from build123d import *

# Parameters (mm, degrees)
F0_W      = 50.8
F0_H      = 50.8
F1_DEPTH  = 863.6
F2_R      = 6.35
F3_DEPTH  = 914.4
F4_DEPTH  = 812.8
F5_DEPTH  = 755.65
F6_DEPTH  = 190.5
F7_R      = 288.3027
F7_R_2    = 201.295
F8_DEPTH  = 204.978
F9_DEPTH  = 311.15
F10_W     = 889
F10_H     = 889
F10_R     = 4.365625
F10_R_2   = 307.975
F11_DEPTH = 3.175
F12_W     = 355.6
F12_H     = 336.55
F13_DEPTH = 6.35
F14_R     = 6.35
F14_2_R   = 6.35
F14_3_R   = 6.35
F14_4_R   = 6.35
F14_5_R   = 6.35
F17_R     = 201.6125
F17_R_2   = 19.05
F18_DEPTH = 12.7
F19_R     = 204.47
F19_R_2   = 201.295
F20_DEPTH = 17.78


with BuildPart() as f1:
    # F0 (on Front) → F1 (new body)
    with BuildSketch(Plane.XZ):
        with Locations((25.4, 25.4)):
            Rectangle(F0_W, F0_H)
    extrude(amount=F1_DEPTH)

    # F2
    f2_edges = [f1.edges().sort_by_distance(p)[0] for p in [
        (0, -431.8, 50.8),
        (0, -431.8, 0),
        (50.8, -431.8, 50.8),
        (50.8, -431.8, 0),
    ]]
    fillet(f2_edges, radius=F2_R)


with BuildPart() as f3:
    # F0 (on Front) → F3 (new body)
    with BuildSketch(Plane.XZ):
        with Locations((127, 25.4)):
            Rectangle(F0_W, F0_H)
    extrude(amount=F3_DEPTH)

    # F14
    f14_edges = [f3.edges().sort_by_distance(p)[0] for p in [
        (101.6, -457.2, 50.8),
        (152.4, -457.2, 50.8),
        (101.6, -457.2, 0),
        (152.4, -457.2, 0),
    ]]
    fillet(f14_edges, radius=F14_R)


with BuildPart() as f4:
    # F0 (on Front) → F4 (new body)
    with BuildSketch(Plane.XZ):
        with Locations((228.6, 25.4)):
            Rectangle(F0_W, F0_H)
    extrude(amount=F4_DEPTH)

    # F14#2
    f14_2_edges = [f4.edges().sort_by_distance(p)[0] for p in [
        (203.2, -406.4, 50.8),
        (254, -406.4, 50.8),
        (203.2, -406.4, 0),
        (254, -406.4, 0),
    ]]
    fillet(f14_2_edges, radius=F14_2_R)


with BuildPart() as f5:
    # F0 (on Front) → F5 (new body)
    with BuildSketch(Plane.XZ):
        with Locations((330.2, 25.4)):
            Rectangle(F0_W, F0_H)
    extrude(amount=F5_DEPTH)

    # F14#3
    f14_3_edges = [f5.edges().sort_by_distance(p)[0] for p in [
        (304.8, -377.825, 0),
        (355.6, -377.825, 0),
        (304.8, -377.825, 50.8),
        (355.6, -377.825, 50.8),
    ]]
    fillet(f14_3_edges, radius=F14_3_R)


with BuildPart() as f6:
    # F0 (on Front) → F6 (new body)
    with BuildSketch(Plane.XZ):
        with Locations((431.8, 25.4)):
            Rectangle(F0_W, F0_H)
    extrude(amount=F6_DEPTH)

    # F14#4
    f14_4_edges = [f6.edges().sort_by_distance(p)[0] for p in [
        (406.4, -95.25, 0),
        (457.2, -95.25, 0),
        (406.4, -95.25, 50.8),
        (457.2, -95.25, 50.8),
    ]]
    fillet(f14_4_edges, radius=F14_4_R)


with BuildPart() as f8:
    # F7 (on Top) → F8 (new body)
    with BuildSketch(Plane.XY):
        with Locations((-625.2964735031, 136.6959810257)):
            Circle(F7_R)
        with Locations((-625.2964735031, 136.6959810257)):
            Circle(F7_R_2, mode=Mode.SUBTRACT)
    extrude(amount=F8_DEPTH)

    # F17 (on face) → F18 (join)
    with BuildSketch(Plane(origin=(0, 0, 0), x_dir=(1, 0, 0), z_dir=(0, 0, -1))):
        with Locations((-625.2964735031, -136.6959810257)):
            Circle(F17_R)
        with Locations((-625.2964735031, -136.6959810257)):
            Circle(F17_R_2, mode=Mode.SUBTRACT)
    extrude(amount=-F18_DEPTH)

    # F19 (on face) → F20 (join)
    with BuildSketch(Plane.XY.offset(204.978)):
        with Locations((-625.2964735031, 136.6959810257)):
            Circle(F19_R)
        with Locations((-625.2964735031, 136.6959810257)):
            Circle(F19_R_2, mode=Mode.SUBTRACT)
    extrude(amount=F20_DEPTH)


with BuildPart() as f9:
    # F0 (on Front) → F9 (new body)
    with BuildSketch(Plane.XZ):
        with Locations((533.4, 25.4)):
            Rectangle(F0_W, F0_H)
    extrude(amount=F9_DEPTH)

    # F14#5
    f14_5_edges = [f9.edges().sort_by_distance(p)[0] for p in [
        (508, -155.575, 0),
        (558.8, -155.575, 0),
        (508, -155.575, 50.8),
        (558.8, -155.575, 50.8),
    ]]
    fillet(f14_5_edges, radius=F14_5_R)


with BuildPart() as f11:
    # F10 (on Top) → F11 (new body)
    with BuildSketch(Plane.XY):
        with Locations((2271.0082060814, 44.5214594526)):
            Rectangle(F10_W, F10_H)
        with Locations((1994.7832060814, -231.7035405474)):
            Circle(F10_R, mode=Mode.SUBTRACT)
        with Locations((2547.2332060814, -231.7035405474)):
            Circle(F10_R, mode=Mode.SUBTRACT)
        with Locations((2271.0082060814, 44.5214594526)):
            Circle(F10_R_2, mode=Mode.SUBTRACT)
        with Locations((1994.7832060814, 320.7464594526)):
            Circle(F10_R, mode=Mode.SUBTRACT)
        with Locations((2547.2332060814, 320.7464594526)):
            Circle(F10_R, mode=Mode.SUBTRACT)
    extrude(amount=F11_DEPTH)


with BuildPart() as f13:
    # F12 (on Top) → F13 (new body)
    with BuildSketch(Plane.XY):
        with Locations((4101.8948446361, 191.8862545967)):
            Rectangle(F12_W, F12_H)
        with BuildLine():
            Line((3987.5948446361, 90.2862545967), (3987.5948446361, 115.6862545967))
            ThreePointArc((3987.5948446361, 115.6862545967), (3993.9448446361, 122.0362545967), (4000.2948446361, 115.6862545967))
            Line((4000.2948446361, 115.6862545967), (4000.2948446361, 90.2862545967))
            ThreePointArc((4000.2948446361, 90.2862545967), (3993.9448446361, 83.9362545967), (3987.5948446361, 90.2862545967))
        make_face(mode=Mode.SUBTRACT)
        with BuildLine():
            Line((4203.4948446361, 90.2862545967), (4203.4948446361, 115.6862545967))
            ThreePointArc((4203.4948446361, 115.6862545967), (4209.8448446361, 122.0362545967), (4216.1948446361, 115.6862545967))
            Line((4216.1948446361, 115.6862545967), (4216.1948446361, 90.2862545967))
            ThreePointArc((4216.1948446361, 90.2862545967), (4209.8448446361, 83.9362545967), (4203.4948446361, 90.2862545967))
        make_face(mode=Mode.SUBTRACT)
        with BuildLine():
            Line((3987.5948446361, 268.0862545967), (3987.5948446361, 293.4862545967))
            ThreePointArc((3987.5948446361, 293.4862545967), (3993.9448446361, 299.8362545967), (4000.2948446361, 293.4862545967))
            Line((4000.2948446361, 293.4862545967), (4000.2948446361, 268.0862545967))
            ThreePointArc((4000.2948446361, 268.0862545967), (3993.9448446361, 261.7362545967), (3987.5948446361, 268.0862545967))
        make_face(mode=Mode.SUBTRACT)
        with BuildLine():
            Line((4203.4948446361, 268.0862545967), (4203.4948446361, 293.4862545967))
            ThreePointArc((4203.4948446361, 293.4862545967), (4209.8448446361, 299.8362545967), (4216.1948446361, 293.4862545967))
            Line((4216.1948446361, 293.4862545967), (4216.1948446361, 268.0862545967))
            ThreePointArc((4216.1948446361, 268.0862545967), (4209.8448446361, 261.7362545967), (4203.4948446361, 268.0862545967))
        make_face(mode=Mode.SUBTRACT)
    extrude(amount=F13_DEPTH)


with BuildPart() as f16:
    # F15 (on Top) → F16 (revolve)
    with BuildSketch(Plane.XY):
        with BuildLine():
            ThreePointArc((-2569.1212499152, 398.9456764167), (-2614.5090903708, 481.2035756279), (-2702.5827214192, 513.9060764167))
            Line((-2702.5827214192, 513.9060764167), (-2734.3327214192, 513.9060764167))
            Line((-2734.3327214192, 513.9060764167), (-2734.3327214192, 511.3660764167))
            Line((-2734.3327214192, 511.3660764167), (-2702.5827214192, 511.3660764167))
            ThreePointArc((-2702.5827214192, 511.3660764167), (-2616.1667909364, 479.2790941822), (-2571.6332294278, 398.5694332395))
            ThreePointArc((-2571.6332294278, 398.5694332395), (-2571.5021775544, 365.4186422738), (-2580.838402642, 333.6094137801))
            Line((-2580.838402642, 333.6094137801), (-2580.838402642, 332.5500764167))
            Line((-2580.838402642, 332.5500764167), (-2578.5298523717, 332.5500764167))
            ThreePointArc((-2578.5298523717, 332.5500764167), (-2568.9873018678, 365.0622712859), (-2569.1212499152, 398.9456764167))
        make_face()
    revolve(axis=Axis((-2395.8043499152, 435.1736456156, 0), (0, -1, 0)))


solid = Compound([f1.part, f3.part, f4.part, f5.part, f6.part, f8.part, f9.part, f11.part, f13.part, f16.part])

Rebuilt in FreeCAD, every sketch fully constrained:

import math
import FreeCAD as App
import Part
import Sketcher

V = App.Vector
Q = App.Units.Quantity


def edges_at(feature, points):
    """Names of the edges that pass closest to the given points."""
    edges = feature.Shape.Edges
    near = lambda p: min(range(len(edges)), key=lambda i: edges[i].distToShape(Part.Vertex(*p))[0])
    return sorted({f"Edge{near(p) + 1}" for p in points})


def add_polygon(sketch, points):
    """Adds a closed chain of lines whose ends are joined by coincident constraints."""
    first, n = sketch.GeometryCount, len(points)
    for a, b in zip(points, points[1:] + points[:1]):
        sketch.addGeometry(Part.LineSegment(App.Vector(*a, 0), App.Vector(*b, 0)), False)
    for i in range(n):
        sketch.addConstraint(Sketcher.Constraint("Coincident", first + i, 2, first + (i + 1) % n, 1))

doc = App.newDocument("Part")
body = doc.addObject("PartDesign::Body", "Body")

sketch1 = body.newObject("Sketcher::SketchObject", "Sketch")
sketch1.AttachmentSupport = (doc.getObject("XZ_Plane"), [""])
sketch1.MapMode = "FlatFace"
add_polygon(sketch1, [(0, 51), (0, 0), (51, 0), (51, 51)])
sketch1.addConstraint([
    Sketcher.Constraint("Vertical", 0),
    Sketcher.Constraint("Horizontal", 1),
    Sketcher.Constraint("Vertical", 2),
    Sketcher.Constraint("Horizontal", 3),
    Sketcher.Constraint("Coincident", 0, 2, -1, 1),
    Sketcher.Constraint("Equal", 3, 0),
    Sketcher.Constraint("DistanceX", 1, 1, 1, 2, Q("2 in")),
])
pad1 = body.newObject("PartDesign::Pad", "Pad")
pad1.Profile = sketch1
pad1.Length = Q("34 in")
doc.recompute()

fillet = body.newObject("PartDesign::Fillet", "Fillet")
fillet.Base = (pad1, edges_at(pad1, [
    (0, -431.8, 50.8),
    (0, -431.8, 0),
    (50.8, -431.8, 50.8),
    (50.8, -431.8, 0),
]))
fillet.Radius = Q("0.25 in")
body2 = doc.addObject("PartDesign::Body", "Body001")

sketch2 = body2.newObject("Sketcher::SketchObject", "Sketch001")
sketch2.AttachmentSupport = (doc.getObject("XZ_Plane001"), [""])
sketch2.MapMode = "FlatFace"
add_polygon(sketch2, [(102, 51), (102, 0), (152, 0), (152, 51)])
sketch2.addConstraint([
    Sketcher.Constraint("Vertical", 0),
    Sketcher.Constraint("Horizontal", 1),
    Sketcher.Constraint("Vertical", 2),
    Sketcher.Constraint("Horizontal", 3),
    Sketcher.Constraint("PointOnObject", 0, 2, -1),
    Sketcher.Constraint("Equal", 3, 0),
    Sketcher.Constraint("DistanceX", 1, 1, 1, 2, Q("2 in")),
    Sketcher.Constraint("DistanceX", -1, 1, 0, 2, Q("4 in")),
])
pad2 = body2.newObject("PartDesign::Pad", "Pad001")
pad2.Profile = sketch2
pad2.Length = Q("36 in")
doc.recompute()

fillet2 = body2.newObject("PartDesign::Fillet", "Fillet001")
fillet2.Base = (pad2, edges_at(pad2, [
    (101.6, -457.2, 50.8),
    (152.4, -457.2, 50.8),
    (101.6, -457.2, 0),
    (152.4, -457.2, 0),
]))
fillet2.Radius = Q("0.25 in")
body3 = doc.addObject("PartDesign::Body", "Body002")

sketch3 = body3.newObject("Sketcher::SketchObject", "Sketch002")
sketch3.AttachmentSupport = (doc.getObject("XZ_Plane002"), [""])
sketch3.MapMode = "FlatFace"
add_polygon(sketch3, [(203, 51), (203, 0), (254, 0), (254, 51)])
sketch3.addConstraint([
    Sketcher.Constraint("Vertical", 0),
    Sketcher.Constraint("Horizontal", 1),
    Sketcher.Constraint("Vertical", 2),
    Sketcher.Constraint("Horizontal", 3),
    Sketcher.Constraint("PointOnObject", 0, 2, -1),
    Sketcher.Constraint("Equal", 3, 0),
    Sketcher.Constraint("DistanceX", 1, 1, 1, 2, Q("2 in")),
    Sketcher.Constraint("DistanceX", -1, 1, 0, 2, Q("8 in")),
])
pad3 = body3.newObject("PartDesign::Pad", "Pad002")
pad3.Profile = sketch3
pad3.Length = Q("32 in")
doc.recompute()

fillet3 = body3.newObject("PartDesign::Fillet", "Fillet002")
fillet3.Base = (pad3, edges_at(pad3, [
    (203.2, -406.4, 50.8),
    (254, -406.4, 50.8),
    (203.2, -406.4, 0),
    (254, -406.4, 0),
]))
fillet3.Radius = Q("0.25 in")
body4 = doc.addObject("PartDesign::Body", "Body003")

sketch4 = body4.newObject("Sketcher::SketchObject", "Sketch003")
sketch4.AttachmentSupport = (doc.getObject("XZ_Plane003"), [""])
sketch4.MapMode = "FlatFace"
add_polygon(sketch4, [(305, 51), (305, 0), (356, 0), (356, 51)])
sketch4.addConstraint([
    Sketcher.Constraint("Vertical", 0),
    Sketcher.Constraint("Horizontal", 1),
    Sketcher.Constraint("Vertical", 2),
    Sketcher.Constraint("Horizontal", 3),
    Sketcher.Constraint("PointOnObject", 0, 2, -1),
    Sketcher.Constraint("Equal", 3, 0),
    Sketcher.Constraint("DistanceX", 1, 1, 1, 2, Q("2 in")),
    Sketcher.Constraint("DistanceX", -1, 1, 0, 2, Q("12 in")),
])
pad4 = body4.newObject("PartDesign::Pad", "Pad003")
pad4.Profile = sketch4
pad4.Length = Q("29.75 in")
doc.recompute()

fillet4 = body4.newObject("PartDesign::Fillet", "Fillet003")
fillet4.Base = (pad4, edges_at(pad4, [
    (304.8, -377.825, 0),
    (355.6, -377.825, 0),
    (304.8, -377.825, 50.8),
    (355.6, -377.825, 50.8),
]))
fillet4.Radius = Q("0.25 in")
body5 = doc.addObject("PartDesign::Body", "Body004")

sketch5 = body5.newObject("Sketcher::SketchObject", "Sketch004")
sketch5.AttachmentSupport = (doc.getObject("XZ_Plane004"), [""])
sketch5.MapMode = "FlatFace"
add_polygon(sketch5, [(406, 51), (406, 0), (457, 0), (457, 51)])
sketch5.addConstraint([
    Sketcher.Constraint("Vertical", 0),
    Sketcher.Constraint("Horizontal", 1),
    Sketcher.Constraint("Vertical", 2),
    Sketcher.Constraint("Horizontal", 3),
    Sketcher.Constraint("PointOnObject", 0, 2, -1),
    Sketcher.Constraint("Equal", 3, 0),
    Sketcher.Constraint("DistanceX", 1, 1, 1, 2, Q("2 in")),
    Sketcher.Constraint("DistanceX", -1, 1, 0, 2, Q("16 in")),
])
pad5 = body5.newObject("PartDesign::Pad", "Pad004")
pad5.Profile = sketch5
pad5.Length = Q("7.5 in")
doc.recompute()

fillet5 = body5.newObject("PartDesign::Fillet", "Fillet004")
fillet5.Base = (pad5, edges_at(pad5, [
    (406.4, -95.25, 0),
    (457.2, -95.25, 0),
    (406.4, -95.25, 50.8),
    (457.2, -95.25, 50.8),
]))
fillet5.Radius = Q("0.25 in")
body6 = doc.addObject("PartDesign::Body", "Body005")

sketch6 = body6.newObject("Sketcher::SketchObject", "Sketch005")
sketch6.AttachmentSupport = (doc.getObject("XY_Plane005"), [""])
sketch6.MapMode = "FlatFace"
sketch6.addGeometry([
    Part.Circle(V(-625, 137, 0), V(0, 0, 1), 288),
    Part.Circle(V(-625, 137, 0), V(0, 0, 1), 201),
], False)
sketch6.addConstraint([
    Sketcher.Constraint("Coincident", 1, 3, 0, 3),
    Sketcher.Constraint("Diameter", 1, Q("15.85 in")),
    Sketcher.Constraint("Diameter", 0, Q("22.701 in")),
    Sketcher.Constraint("DistanceY", -1, 1, 0, 3, Q("136.695981 mm")),
    Sketcher.Constraint("DistanceX", 0, 3, -1, 1, Q("625.296474 mm")),
])
pad6 = body6.newObject("PartDesign::Pad", "Pad005")
pad6.Profile = sketch6
pad6.Length = Q("8.07 in")

sketch7 = body6.newObject("Sketcher::SketchObject", "Sketch006")
sketch7.AttachmentSupport = (doc.getObject("XY_Plane005"), [""])
sketch7.MapMode = "FlatFace"
sketch7.addGeometry([
    Part.Circle(V(-625, 137, 0), V(0, 0, 1), 202),
    Part.Circle(V(-625, 137, 0), V(0, 0, 1), 19),
], False)
sketch7.addConstraint([
    Sketcher.Constraint("Coincident", 1, 3, 0, 3),
    Sketcher.Constraint("Diameter", 1, Q("1.5 in")),
    Sketcher.Constraint("Diameter", 0, Q("15.875 in")),
    Sketcher.Constraint("DistanceY", -1, 1, 0, 3, Q("136.695981 mm")),
    Sketcher.Constraint("DistanceX", 0, 3, -1, 1, Q("625.296474 mm")),
])
pad7 = body6.newObject("PartDesign::Pad", "Pad006")
pad7.Profile = sketch7
pad7.Length = Q("0.5 in")

sketch8 = body6.newObject("Sketcher::SketchObject", "Sketch007")
sketch8.AttachmentSupport = (doc.getObject("XY_Plane005"), [""])
sketch8.MapMode = "FlatFace"
sketch8.AttachmentOffset = App.Placement(V(0, 0, 8.07 * 25.4), App.Rotation())
sketch8.addGeometry([
    Part.Circle(V(-625, 137, 0), V(0, 0, 1), 204),
    Part.Circle(V(-625, 137, 0), V(0, 0, 1), 201),
], False)
sketch8.addConstraint([
    Sketcher.Constraint("Coincident", 1, 3, 0, 3),
    Sketcher.Constraint("Diameter", 0, Q("16.1 in")),
    Sketcher.Constraint("Diameter", 1, Q("15.85 in")),
    Sketcher.Constraint("DistanceY", -1, 1, 0, 3, Q("136.695981 mm")),
    Sketcher.Constraint("DistanceX", 0, 3, -1, 1, Q("625.296474 mm")),
])
pad8 = body6.newObject("PartDesign::Pad", "Pad007")
pad8.Profile = sketch8
pad8.Length = Q("0.7 in")
body7 = doc.addObject("PartDesign::Body", "Body006")

sketch9 = body7.newObject("Sketcher::SketchObject", "Sketch008")
sketch9.AttachmentSupport = (doc.getObject("XZ_Plane006"), [""])
sketch9.MapMode = "FlatFace"
add_polygon(sketch9, [(508, 51), (508, 0), (559, 0), (559, 51)])
sketch9.addConstraint([
    Sketcher.Constraint("Vertical", 0),
    Sketcher.Constraint("Horizontal", 1),
    Sketcher.Constraint("Vertical", 2),
    Sketcher.Constraint("Horizontal", 3),
    Sketcher.Constraint("PointOnObject", 0, 2, -1),
    Sketcher.Constraint("Equal", 3, 0),
    Sketcher.Constraint("DistanceX", 1, 1, 1, 2, Q("2 in")),
    Sketcher.Constraint("DistanceX", -1, 1, 0, 2, Q("20 in")),
])
pad9 = body7.newObject("PartDesign::Pad", "Pad008")
pad9.Profile = sketch9
pad9.Length = Q("12.25 in")
doc.recompute()

fillet6 = body7.newObject("PartDesign::Fillet", "Fillet005")
fillet6.Base = (pad9, edges_at(pad9, [
    (508, -155.575, 0),
    (558.8, -155.575, 0),
    (508, -155.575, 50.8),
    (558.8, -155.575, 50.8),
]))
fillet6.Radius = Q("0.25 in")
body8 = doc.addObject("PartDesign::Body", "Body007")

sketch10 = body8.newObject("Sketcher::SketchObject", "Sketch009")
sketch10.AttachmentSupport = (doc.getObject("XY_Plane007"), [""])
sketch10.MapMode = "FlatFace"
add_polygon(sketch10, [(1826.5, 489), (1826.5, -400), (2715.5, -400), (2715.5, 489)])
sketch10.addGeometry(Part.Circle(V(1994.8, -231.7, 0), V(0, 0, 1), 4.4), False)
sketch10.addGeometry(Part.Circle(V(2547.2, -231.7, 0), V(0, 0, 1), 4.4), False)
sketch10.addGeometry(Part.Circle(V(1994.8, 320.7, 0), V(0, 0, 1), 4.4), False)
sketch10.addGeometry(Part.Circle(V(2271, 44.5, 0), V(0, 0, 1), 308), False)
sketch10.addGeometry(Part.Circle(V(2547.2, 320.7, 0), V(0, 0, 1), 4.4), False)
sketch10.addConstraint([
    Sketcher.Constraint("Vertical", 0),
    Sketcher.Constraint("Horizontal", 1),
    Sketcher.Constraint("Vertical", 2),
    Sketcher.Constraint("Horizontal", 3),
    Sketcher.Constraint("Equal", 4, 5),
    Sketcher.Constraint("Equal", 5, 6),
    Sketcher.Constraint("Equal", 6, 8),
    Sketcher.Constraint("Horizontal", 4, 3, 5, 3),
    Sketcher.Constraint("Horizontal", 6, 3, 8, 3),
    Sketcher.Constraint("Vertical", 4, 3, 6, 3),
    Sketcher.Constraint("Vertical", 5, 3, 8, 3),
    Sketcher.Constraint("Equal", 3, 0),
    Sketcher.Constraint("Diameter", 7, Q("24.25 in")),
    Sketcher.Constraint("DistanceX", 1, 1, 1, 2, Q("35 in")),
    Sketcher.Constraint("Diameter", 4, Q("0.34375 in")),
    Sketcher.Constraint("DistanceX", 0, 2, 7, 3, Q("17.5 in")),
    Sketcher.Constraint("DistanceY", 0, 2, 7, 3, Q("17.5 in")),
    Sketcher.Constraint("DistanceX", 4, 3, 5, 3, Q("21.75 in")),
    Sketcher.Constraint("DistanceY", 4, 3, 6, 3, Q("21.75 in")),
    Sketcher.Constraint("DistanceX", 7, 3, 5, 3, Q("10.875 in")),
    Sketcher.Constraint("DistanceY", 5, 3, 7, 3, Q("10.875 in")),
    Sketcher.Constraint("DistanceY", 4, 3, -1, 1, Q("231.703541 mm")),
    Sketcher.Constraint("DistanceX", -1, 1, 4, 3, Q("1994.783206 mm")),
])
pad10 = body8.newObject("PartDesign::Pad", "Pad009")
pad10.Profile = sketch10
pad10.Length = Q("0.125 in")
body9 = doc.addObject("PartDesign::Body", "Body008")

sketch11 = body9.newObject("Sketcher::SketchObject", "Sketch010")
sketch11.AttachmentSupport = (doc.getObject("XY_Plane008"), [""])
sketch11.MapMode = "FlatFace"
add_polygon(sketch11, [(3924, 360), (3924, 24), (4280, 24), (4280, 360)])
sketch11.addGeometry(Part.ArcOfCircle(Part.Circle(V(3994, 90, 0), V(0, 0, 1), 6), math.radians(180), math.radians(360)), False)
sketch11.addGeometry(Part.LineSegment(V(3988, 90, 0), V(3988, 116, 0)), False)
sketch11.addGeometry(Part.ArcOfCircle(Part.Circle(V(3994, 116, 0), V(0, 0, 1), 6), math.radians(0), math.radians(180)), False)
sketch11.addGeometry(Part.LineSegment(V(4000, 116, 0), V(4000, 90, 0)), False)
sketch11.addGeometry(Part.ArcOfCircle(Part.Circle(V(4210, 90, 0), V(0, 0, 1), 6), math.radians(180), math.radians(360)), False)
sketch11.addGeometry(Part.LineSegment(V(4203, 90, 0), V(4203, 116, 0)), False)
sketch11.addGeometry(Part.ArcOfCircle(Part.Circle(V(4210, 116, 0), V(0, 0, 1), 6), math.radians(0), math.radians(180)), False)
sketch11.addGeometry(Part.LineSegment(V(4216, 116, 0), V(4216, 90, 0)), False)
sketch11.addGeometry(Part.ArcOfCircle(Part.Circle(V(3994, 268, 0), V(0, 0, 1), 6), math.radians(180), math.radians(360)), False)
sketch11.addGeometry(Part.LineSegment(V(3988, 268, 0), V(3988, 293, 0)), False)
sketch11.addGeometry(Part.ArcOfCircle(Part.Circle(V(3994, 293, 0), V(0, 0, 1), 6), math.radians(0), math.radians(180)), False)
sketch11.addGeometry(Part.LineSegment(V(4000, 293, 0), V(4000, 268, 0)), False)
sketch11.addGeometry(Part.ArcOfCircle(Part.Circle(V(4210, 268, 0), V(0, 0, 1), 6), math.radians(180), math.radians(360)), False)
sketch11.addGeometry(Part.LineSegment(V(4203, 268, 0), V(4203, 293, 0)), False)
sketch11.addGeometry(Part.ArcOfCircle(Part.Circle(V(4210, 293, 0), V(0, 0, 1), 6), math.radians(0), math.radians(180)), False)
sketch11.addGeometry(Part.LineSegment(V(4216, 293, 0), V(4216, 268, 0)), False)
sketch11.addConstraint([
    Sketcher.Constraint("Tangent", 4, 1, 5, 1),
    Sketcher.Constraint("Tangent", 5, 2, 6, 2),
    Sketcher.Constraint("Tangent", 6, 1, 7, 1),
    Sketcher.Constraint("Tangent", 7, 2, 4, 2),
    Sketcher.Constraint("Tangent", 8, 1, 9, 1),
    Sketcher.Constraint("Tangent", 9, 2, 10, 2),
    Sketcher.Constraint("Tangent", 10, 1, 11, 1),
    Sketcher.Constraint("Tangent", 11, 2, 8, 2),
    Sketcher.Constraint("Tangent", 12, 1, 13, 1),
    Sketcher.Constraint("Tangent", 13, 2, 14, 2),
    Sketcher.Constraint("Tangent", 14, 1, 15, 1),
    Sketcher.Constraint("Tangent", 15, 2, 12, 2),
    Sketcher.Constraint("Tangent", 16, 1, 17, 1),
    Sketcher.Constraint("Tangent", 17, 2, 18, 2),
    Sketcher.Constraint("Tangent", 18, 1, 19, 1),
    Sketcher.Constraint("Tangent", 19, 2, 16, 2),
    Sketcher.Constraint("Vertical", 0),
    Sketcher.Constraint("Horizontal", 1),
    Sketcher.Constraint("Vertical", 2),
    Sketcher.Constraint("Horizontal", 3),
    Sketcher.Constraint("Vertical", 5),
    Sketcher.Constraint("Vertical", 7),
    Sketcher.Constraint("Vertical", 9),
    Sketcher.Constraint("Vertical", 11),
    Sketcher.Constraint("Vertical", 13),
    Sketcher.Constraint("Vertical", 15),
    Sketcher.Constraint("Vertical", 17),
    Sketcher.Constraint("Vertical", 19),
    Sketcher.Constraint("Equal", 6, 8),
    Sketcher.Constraint("Equal", 10, 12),
    Sketcher.Constraint("Equal", 14, 16),
    Sketcher.Constraint("Horizontal", 4, 3, 8, 3),
    Sketcher.Constraint("Horizontal", 6, 3, 10, 3),
    Sketcher.Constraint("Horizontal", 12, 3, 16, 3),
    Sketcher.Constraint("Horizontal", 14, 3, 18, 3),
    Sketcher.Constraint("Vertical", 6, 3, 12, 3),
    Sketcher.Constraint("Vertical", 10, 3, 16, 3),
    Sketcher.Constraint("Equal", 11, 13),
    Sketcher.Constraint("DistanceX", 1, 1, 1, 2, Q("14 in")),
    Sketcher.Constraint("DistanceY", 5, 1, 5, 2, Q("1 in")),
    Sketcher.Constraint("Radius", 4, Q("0.25 in")),
    Sketcher.Constraint("DistanceY", 6, 3, 12, 3, Q("6 in")),
    Sketcher.Constraint("DistanceX", 0, 2, 6, 1, Q("3 in")),
    Sketcher.Constraint("DistanceX", 8, 1, 1, 2, Q("3 in")),
    Sketcher.Constraint("DistanceY", 0, 2, 0, 1, Q("13.25 in")),
    Sketcher.Constraint("DistanceY", 0, 2, 4, 3, Q("2.625 in")),
    Sketcher.Constraint("DistanceX", -1, 1, 4, 3, Q("3993.944845 mm")),
    Sketcher.Constraint("DistanceY", -1, 1, 4, 3, Q("90.286255 mm")),
])
pad11 = body9.newObject("PartDesign::Pad", "Pad010")
pad11.Profile = sketch11
pad11.Length = Q("0.25 in")
body10 = doc.addObject("PartDesign::Body", "Body009")

sketch12 = body10.newObject("Sketcher::SketchObject", "Sketch011")
sketch12.AttachmentSupport = (doc.getObject("XY_Plane009"), [""])
sketch12.MapMode = "FlatFace"
sketch12.addGeometry([
    Part.ArcOfCircle(Part.Circle(V(-2702.6, 379, 0), V(0, 0, 1), 135), math.radians(9), math.radians(90)),
    Part.LineSegment(V(-2702.6, 513.9, 0), V(-2734.3, 513.9, 0)),
    Part.LineSegment(V(-2734.3, 513.9, 0), V(-2734.3, 511.4, 0)),
    Part.LineSegment(V(-2734.3, 511.4, 0), V(-2702.6, 511.4, 0)),
    Part.ArcOfCircle(Part.Circle(V(-2702.6, 379, 0), V(0, 0, 1), 132.4), math.radians(9), math.radians(90)),
    Part.ArcOfCircle(Part.Circle(V(-2685.3, 381.5, 0), V(0, 0, 1), 114.9), math.radians(-25), math.radians(9)),
    Part.LineSegment(V(-2580.8, 333.6, 0), V(-2580.8, 332.6, 0)),
    Part.LineSegment(V(-2580.8, 332.6, 0), V(-2578.5, 332.6, 0)),
    Part.ArcOfCircle(Part.Circle(V(-2685.3, 381.5, 0), V(0, 0, 1), 117.5), math.radians(-25), math.radians(9)),
], False)
sketch12.addGeometry(Part.LineSegment(V(-2395.8, 513.9, 0), V(-2395.8, 332.6, 0)), True)
sketch12.addConstraint([
    Sketcher.Constraint("Tangent", 0, 2, 1, 1),
    Sketcher.Constraint("Coincident", 1, 2, 2, 1),
    Sketcher.Constraint("Coincident", 2, 2, 3, 1),
    Sketcher.Constraint("Tangent", 3, 2, 4, 2),
    Sketcher.Constraint("Tangent", 4, 1, 5, 2),
    Sketcher.Constraint("Coincident", 5, 1, 6, 1),
    Sketcher.Constraint("Coincident", 6, 2, 7, 1),
    Sketcher.Constraint("Coincident", 7, 2, 8, 1),
    Sketcher.Constraint("Tangent", 8, 2, 0, 1),
    Sketcher.Constraint("Horizontal", 1),
    Sketcher.Constraint("Vertical", 2),
    Sketcher.Constraint("Horizontal", 3),
    Sketcher.Constraint("Vertical", 6),
    Sketcher.Constraint("Horizontal", 7),
    Sketcher.Constraint("Vertical", 9),
    Sketcher.Constraint("Coincident", 4, 3, 0, 3),
    Sketcher.Constraint("Coincident", 8, 3, 5, 3),
    Sketcher.Constraint("Horizontal", 1, 2, 9, 1),
    Sketcher.Constraint("Horizontal", 7, 2, 9, 2),
    Sketcher.Constraint("DistanceY", 2, 2, 2, 1, Q("0.1 in")),
    Sketcher.Constraint("Radius", 0, Q("5.313 in")),
    Sketcher.Constraint("Radius", 5, Q("4.525 in")),
    Sketcher.Constraint("DistanceX", 1, 2, 1, 1, Q("1.25 in")),
    Sketcher.Constraint("DistanceY", 9, 2, 9, 1, Q("7.14 in")),
    Sketcher.Constraint("DistanceY", 7, 2, 8, 2, Q("2.614 in")),
    Sketcher.Constraint("DistanceX", 8, 2, 9, 1, Q("6.8235 in")),
    Sketcher.Constraint("DistanceX", 7, 1, 7, 2, Q("2.30855 mm")),
    Sketcher.Constraint("DistanceX", 0, 3, -1, 1, Q("2702.582721 mm")),
    Sketcher.Constraint("DistanceY", -1, 1, 5, 3, Q("381.544429 mm")),
])
revolution = body10.newObject("PartDesign::Revolution", "Revolution")
revolution.Profile = sketch12
revolution.ReferenceAxis = (sketch12, ["Axis0"])
revolution.Angle = 360

doc.recompute()
